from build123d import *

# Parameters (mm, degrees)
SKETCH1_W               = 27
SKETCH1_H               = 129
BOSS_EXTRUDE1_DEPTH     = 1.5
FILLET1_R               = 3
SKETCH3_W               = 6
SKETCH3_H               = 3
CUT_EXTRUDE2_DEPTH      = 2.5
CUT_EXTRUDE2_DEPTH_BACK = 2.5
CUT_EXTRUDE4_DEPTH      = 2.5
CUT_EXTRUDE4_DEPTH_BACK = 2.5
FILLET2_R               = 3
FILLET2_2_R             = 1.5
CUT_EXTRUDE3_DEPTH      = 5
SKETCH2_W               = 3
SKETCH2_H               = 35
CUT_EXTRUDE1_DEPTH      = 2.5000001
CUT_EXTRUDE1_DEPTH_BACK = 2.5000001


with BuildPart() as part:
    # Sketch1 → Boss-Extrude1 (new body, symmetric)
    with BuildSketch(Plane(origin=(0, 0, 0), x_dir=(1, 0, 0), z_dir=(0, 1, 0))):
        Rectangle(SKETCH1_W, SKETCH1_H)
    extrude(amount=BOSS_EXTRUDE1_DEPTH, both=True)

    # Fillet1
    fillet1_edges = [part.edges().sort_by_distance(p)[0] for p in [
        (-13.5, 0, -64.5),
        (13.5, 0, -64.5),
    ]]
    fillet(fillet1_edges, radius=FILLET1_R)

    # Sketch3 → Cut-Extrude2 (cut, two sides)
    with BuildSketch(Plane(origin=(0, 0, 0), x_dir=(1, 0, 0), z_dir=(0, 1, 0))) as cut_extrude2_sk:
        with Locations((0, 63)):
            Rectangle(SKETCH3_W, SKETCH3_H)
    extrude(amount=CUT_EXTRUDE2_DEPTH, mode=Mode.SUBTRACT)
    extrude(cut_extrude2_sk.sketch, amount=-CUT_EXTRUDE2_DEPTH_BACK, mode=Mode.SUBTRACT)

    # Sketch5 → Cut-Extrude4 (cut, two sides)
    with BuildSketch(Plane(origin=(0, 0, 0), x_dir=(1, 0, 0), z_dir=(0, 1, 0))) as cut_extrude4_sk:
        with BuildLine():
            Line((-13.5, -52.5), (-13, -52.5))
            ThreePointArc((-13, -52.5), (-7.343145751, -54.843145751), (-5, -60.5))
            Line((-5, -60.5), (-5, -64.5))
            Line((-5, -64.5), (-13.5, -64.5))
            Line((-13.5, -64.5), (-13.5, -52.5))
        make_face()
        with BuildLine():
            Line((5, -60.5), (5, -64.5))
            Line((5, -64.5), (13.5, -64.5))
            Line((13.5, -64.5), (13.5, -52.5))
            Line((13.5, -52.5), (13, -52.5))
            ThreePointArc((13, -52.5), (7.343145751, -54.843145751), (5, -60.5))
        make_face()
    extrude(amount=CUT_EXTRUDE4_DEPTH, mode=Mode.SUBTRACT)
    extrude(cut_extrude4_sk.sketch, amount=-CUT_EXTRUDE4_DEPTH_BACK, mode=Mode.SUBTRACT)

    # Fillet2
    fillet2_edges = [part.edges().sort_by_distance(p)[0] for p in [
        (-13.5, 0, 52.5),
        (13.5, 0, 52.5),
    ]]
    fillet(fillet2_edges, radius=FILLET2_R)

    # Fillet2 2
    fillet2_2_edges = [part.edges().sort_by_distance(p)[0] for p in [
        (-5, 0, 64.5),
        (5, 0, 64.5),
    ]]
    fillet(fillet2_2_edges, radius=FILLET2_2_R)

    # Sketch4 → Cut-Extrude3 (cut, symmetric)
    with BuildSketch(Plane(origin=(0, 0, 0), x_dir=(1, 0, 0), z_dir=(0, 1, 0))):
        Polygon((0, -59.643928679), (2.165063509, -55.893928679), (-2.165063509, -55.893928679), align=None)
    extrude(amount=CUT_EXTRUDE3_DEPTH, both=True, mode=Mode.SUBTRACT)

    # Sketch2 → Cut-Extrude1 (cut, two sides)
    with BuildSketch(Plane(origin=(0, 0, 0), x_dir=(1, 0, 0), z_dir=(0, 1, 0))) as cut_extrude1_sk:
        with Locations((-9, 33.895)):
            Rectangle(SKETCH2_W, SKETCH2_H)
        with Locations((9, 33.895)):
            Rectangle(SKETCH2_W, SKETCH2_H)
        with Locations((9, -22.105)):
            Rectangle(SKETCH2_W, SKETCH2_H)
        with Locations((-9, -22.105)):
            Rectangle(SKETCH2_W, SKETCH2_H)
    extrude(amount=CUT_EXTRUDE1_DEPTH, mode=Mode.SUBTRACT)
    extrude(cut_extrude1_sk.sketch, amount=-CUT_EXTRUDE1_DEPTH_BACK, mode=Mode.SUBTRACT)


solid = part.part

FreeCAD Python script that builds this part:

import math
import FreeCAD as App
import Part
import Sketcher

V = App.Vector
Q = App.Units.Quantity


def edges_at(feature, points):
    """Names of the edges that pass closest to the given points."""
    edges = feature.Shape.Edges
    near = lambda p: min(range(len(edges)), key=lambda i: edges[i].distToShape(Part.Vertex(*p))[0])
    return sorted({f"Edge{near(p) + 1}" for p in points})

doc = App.newDocument("Part")
params = doc.addObject("Spreadsheet::Sheet", "Params")
for row, (alias, value) in enumerate([
    ("sketch1_width", "27 mm"),
    ("sketch1_height", "129 mm"),
    ("pad1_length", "3 mm"),
    ("fillet_radius", "3 mm"),
    ("sketch2_width", "6 mm"),
    ("sketch2_height", "3 mm"),
    ("sketch3_radius", "8 mm"),
    ("sketch3_height", "12 mm"),
    ("sketch3_width", "0.5 mm"),
    ("fillet2_radius", "3 mm"),
    ("fillet3_radius", "1.5 mm"),
    ("pocket3_length", "10 mm"),
    ("sketch5_width", "3 mm"),
    ("sketch5_height", "35 mm"),
], start=1):
    params.set(f"A{row}", alias)
    params.set(f"B{row}", "=" + value)
    params.setAlias(f"B{row}", alias)

body = doc.addObject("PartDesign::Body", "Body")

# Sketch on XZ plane
sketch1 = body.newObject("Sketcher::SketchObject", "Sketch")
sketch1.AttachmentSupport = (doc.getObject("XZ_Plane"), [""])
sketch1.MapMode = "FlatFace"
sketch1.addGeometry([
    Part.LineSegment(V(-14, -64, 0), V(-14, 64, 0)),
    Part.LineSegment(V(-14, 64, 0), V(14, 64, 0)),
    Part.LineSegment(V(14, 64, 0), V(14, -64, 0)),
    Part.LineSegment(V(14, -64, 0), V(-14, -64, 0)),
], False)
sketch1.addConstraint([
    Sketcher.Constraint("Coincident", 0, 2, 1, 1),
    Sketcher.Constraint("Coincident", 1, 2, 2, 1),
    Sketcher.Constraint("Coincident", 2, 2, 3, 1),
    Sketcher.Constraint("Coincident", 3, 2, 0, 1),
    Sketcher.Constraint("Vertical", 0),
    Sketcher.Constraint("Horizontal", 1),
    Sketcher.Constraint("Vertical", 2),
    Sketcher.Constraint("Horizontal", 3),
    Sketcher.Constraint("Symmetric", 0, 2, 2, 2, -1, 1),
    Sketcher.Constraint("DistanceX", 1, 1, 1, 2, Q("27 mm")),
    Sketcher.Constraint("DistanceY", 0, 1, 0, 2, Q("129 mm")),
])
sketch1.setExpression("Constraints[9]", "Params.sketch1_width")
sketch1.setExpression("Constraints[10]", "Params.sketch1_height")
pad1 = body.newObject("PartDesign::Pad", "Pad")
pad1.Profile = sketch1
pad1.setExpression("Length", "Params.pad1_length")
pad1.Midplane = True
doc.recompute()

fillet = body.newObject("PartDesign::Fillet", "Fillet")
fillet.Base = (pad1, edges_at(pad1, [(-13.5, 0, -64.5), (13.5, 0, -64.5)]))
fillet.setExpression("Radius", "Params.fillet_radius")

# Sketch on XZ plane
sketch2 = body.newObject("Sketcher::SketchObject", "Sketch001")
sketch2.AttachmentSupport = (doc.getObject("XZ_Plane"), [""])
sketch2.MapMode = "FlatFace"
sketch2.addGeometry([
    Part.LineSegment(V(-3, -64.5, 0), V(-3, -61.5, 0)),
    Part.LineSegment(V(-3, -61.5, 0), V(3, -61.5, 0)),
    Part.LineSegment(V(3, -61.5, 0), V(3, -64.5, 0)),
    Part.LineSegment(V(3, -64.5, 0), V(-3, -64.5, 0)),
], False)
sketch2.addConstraint([
    Sketcher.Constraint("Coincident", 0, 2, 1, 1),
    Sketcher.Constraint("Coincident", 1, 2, 2, 1),
    Sketcher.Constraint("Coincident", 2, 2, 3, 1),
    Sketcher.Constraint("Coincident", 3, 2, 0, 1),
    Sketcher.Constraint("Vertical", 0),
    Sketcher.Constraint("Horizontal", 1),
    Sketcher.Constraint("Vertical", 2),
    Sketcher.Constraint("Horizontal", 3),
    Sketcher.Constraint("DistanceX", 1, 1, 1, 2, Q("6 mm")),
    Sketcher.Constraint("DistanceY", 0, 1, 0, 2, Q("3 mm")),
    Sketcher.Constraint("DistanceX", 0, 2, -1, 1, Q("3 mm")),
    Sketcher.Constraint("DistanceY", 0, 2, -1, 1, Q("61.5 mm")),
])
sketch2.setExpression("Constraints[8]", "Params.sketch2_width")
sketch2.setExpression("Constraints[9]", "Params.sketch2_height")
pocket1 = body.newObject("PartDesign::Pocket", "Pocket")
pocket1.Profile = sketch2
pocket1.Type = "ThroughAll"
pocket1.Midplane = True

# Sketch on XZ plane
sketch3 = body.newObject("Sketcher::SketchObject", "Sketch002")
sketch3.AttachmentSupport = (doc.getObject("XZ_Plane"), [""])
sketch3.MapMode = "FlatFace"
sketch3.addGeometry([
    Part.LineSegment(V(-13, 52.5, 0), V(-13.5, 52.5, 0)),  # 0
    Part.LineSegment(V(-13.5, 52.5, 0), V(-13.5, 64.5, 0)),  # 1
    Part.LineSegment(V(-13.5, 64.5, 0), V(-5, 64.5, 0)),  # 2
    Part.LineSegment(V(-5, 64.5, 0), V(-5, 60.5, 0)),  # 3
    Part.ArcOfCircle(Part.Circle(V(-13, 60.5, 0), V(0, 0, 1), 8), math.radians(-90), math.radians(0)),  # 4
    Part.LineSegment(V(5, 60.5, 0), V(5, 64.5, 0)),  # 5
    Part.LineSegment(V(5, 64.5, 0), V(13.5, 64.5, 0)),  # 6
    Part.LineSegment(V(13.5, 64.5, 0), V(13.5, 52.5, 0)),  # 7
    Part.LineSegment(V(13.5, 52.5, 0), V(13, 52.5, 0)),  # 8
    Part.ArcOfCircle(Part.Circle(V(13, 60.5, 0), V(0, 0, 1), 8), math.radians(-180), math.radians(-90)),  # 9
], False)
sketch3.addConstraint([
    Sketcher.Constraint("Coincident", 0, 2, 1, 1),
    Sketcher.Constraint("Coincident", 1, 2, 2, 1),
    Sketcher.Constraint("Coincident", 2, 2, 3, 1),
    Sketcher.Constraint("Tangent", 3, 2, 4, 2),
    Sketcher.Constraint("Tangent", 4, 1, 0, 1),
    Sketcher.Constraint("Coincident", 5, 2, 6, 1),
    Sketcher.Constraint("Coincident", 6, 2, 7, 1),
    Sketcher.Constraint("Coincident", 7, 2, 8, 1),
    Sketcher.Constraint("Tangent", 8, 2, 9, 2),
    Sketcher.Constraint("Tangent", 9, 1, 5, 1),
    Sketcher.Constraint("Horizontal", 0),
    Sketcher.Constraint("Vertical", 1),
    Sketcher.Constraint("Horizontal", 2),
    Sketcher.Constraint("Vertical", 3),
    Sketcher.Constraint("Vertical", 5),
    Sketcher.Constraint("Horizontal", 6),
    Sketcher.Constraint("Vertical", 7),
    Sketcher.Constraint("Horizontal", 8),
    Sketcher.Constraint("Equal", 4, 9),
    Sketcher.Constraint("Symmetric", 4, 3, 9, 3, -2),
    Sketcher.Constraint("Symmetric", 1, 2, 6, 2, -2),
    Sketcher.Constraint("Radius", 4, Q("8 mm")),
    Sketcher.Constraint("DistanceY", 1, 1, 1, 2, Q("12 mm")),
    Sketcher.Constraint("DistanceX", 0, 2, 0, 1, Q("0.5 mm")),
    Sketcher.Constraint("DistanceX", 4, 3, -1, 1, Q("13 mm")),
    Sketcher.Constraint("DistanceY", -1, 1, 4, 3, Q("60.5 mm")),
])
sketch3.setExpression("Constraints[21]", "Params.sketch3_radius")
sketch3.setExpression("Constraints[22]", "Params.sketch3_height")
sketch3.setExpression("Constraints[23]", "Params.sketch3_width")
pocket2 = body.newObject("PartDesign::Pocket", "Pocket001")
pocket2.Profile = sketch3
pocket2.Type = "ThroughAll"
pocket2.Midplane = True
doc.recompute()

fillet2 = body.newObject("PartDesign::Fillet", "Fillet001")
fillet2.Base = (pocket2, edges_at(pocket2, [(-13.5, 0, 52.5), (13.5, 0, 52.5)]))
fillet2.setExpression("Radius", "Params.fillet2_radius")
doc.recompute()

fillet3 = body.newObject("PartDesign::Fillet", "Fillet002")
fillet3.Base = (fillet2, edges_at(fillet2, [(-5, 0, 64.5), (5, 0, 64.5)]))
fillet3.setExpression("Radius", "Params.fillet3_radius")

# Sketch on XZ plane
sketch4 = body.newObject("Sketcher::SketchObject", "Sketch003")
sketch4.AttachmentSupport = (doc.getObject("XZ_Plane"), [""])
sketch4.MapMode = "FlatFace"
sketch4.addGeometry([
    Part.LineSegment(V(0, 59.6, 0), V(2.2, 55.9, 0)),
    Part.LineSegment(V(2.2, 55.9, 0), V(-2.2, 55.9, 0)),
    Part.LineSegment(V(-2.2, 55.9, 0), V(0, 59.6, 0)),
], False)
sketch4.addConstraint([
    Sketcher.Constraint("Coincident", 0, 2, 1, 1),
    Sketcher.Constraint("Coincident", 1, 2, 2, 1),
    Sketcher.Constraint("Coincident", 2, 2, 0, 1),
    Sketcher.Constraint("Horizontal", 1),
    Sketcher.Constraint("PointOnObject", 2, 2, -2),
    Sketcher.Constraint("Equal", 0, 2),
    Sketcher.Constraint("Angle", 0, Q("-60 deg")),
    Sketcher.Constraint("DistanceY", 0, 2, 2, 2, Q("3.75 mm")),
    Sketcher.Constraint("DistanceY", -1, 1, 0, 2, Q("55.893929 mm")),
])
pocket3 = body.newObject("PartDesign::Pocket", "Pocket002")
pocket3.Profile = sketch4
pocket3.setExpression("Length", "Params.pocket3_length")
pocket3.Midplane = True

# Sketch on XZ plane
sketch5 = body.newObject("Sketcher::SketchObject", "Sketch004")
sketch5.AttachmentSupport = (doc.getObject("XZ_Plane"), [""])
sketch5.MapMode = "FlatFace"
sketch5.addGeometry([
    Part.LineSegment(V(-10.5, -51.4, 0), V(-10.5, -16.4, 0)),  # 0
    Part.LineSegment(V(-10.5, -16.4, 0), V(-7.5, -16.4, 0)),  # 1
    Part.LineSegment(V(-7.5, -16.4, 0), V(-7.5, -51.4, 0)),  # 2
    Part.LineSegment(V(-7.5, -51.4, 0), V(-10.5, -51.4, 0)),  # 3
    Part.LineSegment(V(7.5, -51.4, 0), V(7.5, -16.4, 0)),  # 4
    Part.LineSegment(V(7.5, -16.4, 0), V(10.5, -16.4, 0)),  # 5
    Part.LineSegment(V(10.5, -16.4, 0), V(10.5, -51.4, 0)),  # 6
    Part.LineSegment(V(10.5, -51.4, 0), V(7.5, -51.4, 0)),  # 7
    Part.LineSegment(V(7.5, 4.6, 0), V(7.5, 39.6, 0)),  # 8
    Part.LineSegment(V(7.5, 39.6, 0), V(10.5, 39.6, 0)),  # 9
    Part.LineSegment(V(10.5, 39.6, 0), V(10.5, 4.6, 0)),  # 10
    Part.LineSegment(V(10.5, 4.6, 0), V(7.5, 4.6, 0)),  # 11
    Part.LineSegment(V(-10.5, 4.6, 0), V(-10.5, 39.6, 0)),  # 12
    Part.LineSegment(V(-10.5, 39.6, 0), V(-7.5, 39.6, 0)),  # 13
    Part.LineSegment(V(-7.5, 39.6, 0), V(-7.5, 4.6, 0)),  # 14
    Part.LineSegment(V(-7.5, 4.6, 0), V(-10.5, 4.6, 0)),  # 15
], False)
sketch5.addConstraint([
    Sketcher.Constraint("Coincident", 0, 2, 1, 1),
    Sketcher.Constraint("Coincident", 1, 2, 2, 1),
    Sketcher.Constraint("Coincident", 2, 2, 3, 1),
    Sketcher.Constraint("Coincident", 3, 2, 0, 1),
    Sketcher.Constraint("Coincident", 4, 2, 5, 1),
    Sketcher.Constraint("Coincident", 5, 2, 6, 1),
    Sketcher.Constraint("Coincident", 6, 2, 7, 1),
    Sketcher.Constraint("Coincident", 7, 2, 4, 1),
    Sketcher.Constraint("Coincident", 8, 2, 9, 1),
    Sketcher.Constraint("Coincident", 9, 2, 10, 1),
    Sketcher.Constraint("Coincident", 10, 2, 11, 1),
    Sketcher.Constraint("Coincident", 11, 2, 8, 1),
    Sketcher.Constraint("Coincident", 12, 2, 13, 1),
    Sketcher.Constraint("Coincident", 13, 2, 14, 1),
    Sketcher.Constraint("Coincident", 14, 2, 15, 1),
    Sketcher.Constraint("Coincident", 15, 2, 12, 1),
    Sketcher.Constraint("Vertical", 0),
    Sketcher.Constraint("Horizontal", 1),
    Sketcher.Constraint("Vertical", 2),
    Sketcher.Constraint("Horizontal", 3),
    Sketcher.Constraint("Vertical", 4),
    Sketcher.Constraint("Horizontal", 5),
    Sketcher.Constraint("Vertical", 6),
    Sketcher.Constraint("Horizontal", 7),
    Sketcher.Constraint("Vertical", 8),
    Sketcher.Constraint("Horizontal", 9),
    Sketcher.Constraint("Vertical", 10),
    Sketcher.Constraint("Horizontal", 11),
    Sketcher.Constraint("Vertical", 12),
    Sketcher.Constraint("Horizontal", 13),
    Sketcher.Constraint("Vertical", 14),
    Sketcher.Constraint("Horizontal", 15),
    Sketcher.Constraint("Symmetric", 1, 2, 4, 2, -2),
    Sketcher.Constraint("Symmetric", 3, 2, 6, 2, -2),
    Sketcher.Constraint("Symmetric", 9, 2, 12, 2, -2),
    Sketcher.Constraint("Symmetric", 11, 2, 14, 2, -2),
    Sketcher.Constraint("Vertical", 7, 2, 8, 2),
    Sketcher.Constraint("Vertical", 6, 2, 9, 2),
    Sketcher.Constraint("Equal", 6, 8),
    Sketcher.Constraint("DistanceX", 1, 1, 1, 2, Q("3 mm")),
    Sketcher.Constraint("DistanceY", 0, 1, 0, 2, Q("35 mm")),
    Sketcher.Constraint("DistanceX", 1, 2, 4, 2, Q("15 mm")),
    Sketcher.Constraint("DistanceY", 4, 2, 8, 2, Q("56 mm")),
    Sketcher.Constraint("DistanceY", 0, 2, -1, 1, Q("16.395 mm")),
])
sketch5.setExpression("Constraints[39]", "Params.sketch5_width")
sketch5.setExpression("Constraints[40]", "Params.sketch5_height")
pocket4 = body.newObject("PartDesign::Pocket", "Pocket003")
pocket4.Profile = sketch5
pocket4.Type = "ThroughAll"
pocket4.Midplane = True

doc.recompute()
